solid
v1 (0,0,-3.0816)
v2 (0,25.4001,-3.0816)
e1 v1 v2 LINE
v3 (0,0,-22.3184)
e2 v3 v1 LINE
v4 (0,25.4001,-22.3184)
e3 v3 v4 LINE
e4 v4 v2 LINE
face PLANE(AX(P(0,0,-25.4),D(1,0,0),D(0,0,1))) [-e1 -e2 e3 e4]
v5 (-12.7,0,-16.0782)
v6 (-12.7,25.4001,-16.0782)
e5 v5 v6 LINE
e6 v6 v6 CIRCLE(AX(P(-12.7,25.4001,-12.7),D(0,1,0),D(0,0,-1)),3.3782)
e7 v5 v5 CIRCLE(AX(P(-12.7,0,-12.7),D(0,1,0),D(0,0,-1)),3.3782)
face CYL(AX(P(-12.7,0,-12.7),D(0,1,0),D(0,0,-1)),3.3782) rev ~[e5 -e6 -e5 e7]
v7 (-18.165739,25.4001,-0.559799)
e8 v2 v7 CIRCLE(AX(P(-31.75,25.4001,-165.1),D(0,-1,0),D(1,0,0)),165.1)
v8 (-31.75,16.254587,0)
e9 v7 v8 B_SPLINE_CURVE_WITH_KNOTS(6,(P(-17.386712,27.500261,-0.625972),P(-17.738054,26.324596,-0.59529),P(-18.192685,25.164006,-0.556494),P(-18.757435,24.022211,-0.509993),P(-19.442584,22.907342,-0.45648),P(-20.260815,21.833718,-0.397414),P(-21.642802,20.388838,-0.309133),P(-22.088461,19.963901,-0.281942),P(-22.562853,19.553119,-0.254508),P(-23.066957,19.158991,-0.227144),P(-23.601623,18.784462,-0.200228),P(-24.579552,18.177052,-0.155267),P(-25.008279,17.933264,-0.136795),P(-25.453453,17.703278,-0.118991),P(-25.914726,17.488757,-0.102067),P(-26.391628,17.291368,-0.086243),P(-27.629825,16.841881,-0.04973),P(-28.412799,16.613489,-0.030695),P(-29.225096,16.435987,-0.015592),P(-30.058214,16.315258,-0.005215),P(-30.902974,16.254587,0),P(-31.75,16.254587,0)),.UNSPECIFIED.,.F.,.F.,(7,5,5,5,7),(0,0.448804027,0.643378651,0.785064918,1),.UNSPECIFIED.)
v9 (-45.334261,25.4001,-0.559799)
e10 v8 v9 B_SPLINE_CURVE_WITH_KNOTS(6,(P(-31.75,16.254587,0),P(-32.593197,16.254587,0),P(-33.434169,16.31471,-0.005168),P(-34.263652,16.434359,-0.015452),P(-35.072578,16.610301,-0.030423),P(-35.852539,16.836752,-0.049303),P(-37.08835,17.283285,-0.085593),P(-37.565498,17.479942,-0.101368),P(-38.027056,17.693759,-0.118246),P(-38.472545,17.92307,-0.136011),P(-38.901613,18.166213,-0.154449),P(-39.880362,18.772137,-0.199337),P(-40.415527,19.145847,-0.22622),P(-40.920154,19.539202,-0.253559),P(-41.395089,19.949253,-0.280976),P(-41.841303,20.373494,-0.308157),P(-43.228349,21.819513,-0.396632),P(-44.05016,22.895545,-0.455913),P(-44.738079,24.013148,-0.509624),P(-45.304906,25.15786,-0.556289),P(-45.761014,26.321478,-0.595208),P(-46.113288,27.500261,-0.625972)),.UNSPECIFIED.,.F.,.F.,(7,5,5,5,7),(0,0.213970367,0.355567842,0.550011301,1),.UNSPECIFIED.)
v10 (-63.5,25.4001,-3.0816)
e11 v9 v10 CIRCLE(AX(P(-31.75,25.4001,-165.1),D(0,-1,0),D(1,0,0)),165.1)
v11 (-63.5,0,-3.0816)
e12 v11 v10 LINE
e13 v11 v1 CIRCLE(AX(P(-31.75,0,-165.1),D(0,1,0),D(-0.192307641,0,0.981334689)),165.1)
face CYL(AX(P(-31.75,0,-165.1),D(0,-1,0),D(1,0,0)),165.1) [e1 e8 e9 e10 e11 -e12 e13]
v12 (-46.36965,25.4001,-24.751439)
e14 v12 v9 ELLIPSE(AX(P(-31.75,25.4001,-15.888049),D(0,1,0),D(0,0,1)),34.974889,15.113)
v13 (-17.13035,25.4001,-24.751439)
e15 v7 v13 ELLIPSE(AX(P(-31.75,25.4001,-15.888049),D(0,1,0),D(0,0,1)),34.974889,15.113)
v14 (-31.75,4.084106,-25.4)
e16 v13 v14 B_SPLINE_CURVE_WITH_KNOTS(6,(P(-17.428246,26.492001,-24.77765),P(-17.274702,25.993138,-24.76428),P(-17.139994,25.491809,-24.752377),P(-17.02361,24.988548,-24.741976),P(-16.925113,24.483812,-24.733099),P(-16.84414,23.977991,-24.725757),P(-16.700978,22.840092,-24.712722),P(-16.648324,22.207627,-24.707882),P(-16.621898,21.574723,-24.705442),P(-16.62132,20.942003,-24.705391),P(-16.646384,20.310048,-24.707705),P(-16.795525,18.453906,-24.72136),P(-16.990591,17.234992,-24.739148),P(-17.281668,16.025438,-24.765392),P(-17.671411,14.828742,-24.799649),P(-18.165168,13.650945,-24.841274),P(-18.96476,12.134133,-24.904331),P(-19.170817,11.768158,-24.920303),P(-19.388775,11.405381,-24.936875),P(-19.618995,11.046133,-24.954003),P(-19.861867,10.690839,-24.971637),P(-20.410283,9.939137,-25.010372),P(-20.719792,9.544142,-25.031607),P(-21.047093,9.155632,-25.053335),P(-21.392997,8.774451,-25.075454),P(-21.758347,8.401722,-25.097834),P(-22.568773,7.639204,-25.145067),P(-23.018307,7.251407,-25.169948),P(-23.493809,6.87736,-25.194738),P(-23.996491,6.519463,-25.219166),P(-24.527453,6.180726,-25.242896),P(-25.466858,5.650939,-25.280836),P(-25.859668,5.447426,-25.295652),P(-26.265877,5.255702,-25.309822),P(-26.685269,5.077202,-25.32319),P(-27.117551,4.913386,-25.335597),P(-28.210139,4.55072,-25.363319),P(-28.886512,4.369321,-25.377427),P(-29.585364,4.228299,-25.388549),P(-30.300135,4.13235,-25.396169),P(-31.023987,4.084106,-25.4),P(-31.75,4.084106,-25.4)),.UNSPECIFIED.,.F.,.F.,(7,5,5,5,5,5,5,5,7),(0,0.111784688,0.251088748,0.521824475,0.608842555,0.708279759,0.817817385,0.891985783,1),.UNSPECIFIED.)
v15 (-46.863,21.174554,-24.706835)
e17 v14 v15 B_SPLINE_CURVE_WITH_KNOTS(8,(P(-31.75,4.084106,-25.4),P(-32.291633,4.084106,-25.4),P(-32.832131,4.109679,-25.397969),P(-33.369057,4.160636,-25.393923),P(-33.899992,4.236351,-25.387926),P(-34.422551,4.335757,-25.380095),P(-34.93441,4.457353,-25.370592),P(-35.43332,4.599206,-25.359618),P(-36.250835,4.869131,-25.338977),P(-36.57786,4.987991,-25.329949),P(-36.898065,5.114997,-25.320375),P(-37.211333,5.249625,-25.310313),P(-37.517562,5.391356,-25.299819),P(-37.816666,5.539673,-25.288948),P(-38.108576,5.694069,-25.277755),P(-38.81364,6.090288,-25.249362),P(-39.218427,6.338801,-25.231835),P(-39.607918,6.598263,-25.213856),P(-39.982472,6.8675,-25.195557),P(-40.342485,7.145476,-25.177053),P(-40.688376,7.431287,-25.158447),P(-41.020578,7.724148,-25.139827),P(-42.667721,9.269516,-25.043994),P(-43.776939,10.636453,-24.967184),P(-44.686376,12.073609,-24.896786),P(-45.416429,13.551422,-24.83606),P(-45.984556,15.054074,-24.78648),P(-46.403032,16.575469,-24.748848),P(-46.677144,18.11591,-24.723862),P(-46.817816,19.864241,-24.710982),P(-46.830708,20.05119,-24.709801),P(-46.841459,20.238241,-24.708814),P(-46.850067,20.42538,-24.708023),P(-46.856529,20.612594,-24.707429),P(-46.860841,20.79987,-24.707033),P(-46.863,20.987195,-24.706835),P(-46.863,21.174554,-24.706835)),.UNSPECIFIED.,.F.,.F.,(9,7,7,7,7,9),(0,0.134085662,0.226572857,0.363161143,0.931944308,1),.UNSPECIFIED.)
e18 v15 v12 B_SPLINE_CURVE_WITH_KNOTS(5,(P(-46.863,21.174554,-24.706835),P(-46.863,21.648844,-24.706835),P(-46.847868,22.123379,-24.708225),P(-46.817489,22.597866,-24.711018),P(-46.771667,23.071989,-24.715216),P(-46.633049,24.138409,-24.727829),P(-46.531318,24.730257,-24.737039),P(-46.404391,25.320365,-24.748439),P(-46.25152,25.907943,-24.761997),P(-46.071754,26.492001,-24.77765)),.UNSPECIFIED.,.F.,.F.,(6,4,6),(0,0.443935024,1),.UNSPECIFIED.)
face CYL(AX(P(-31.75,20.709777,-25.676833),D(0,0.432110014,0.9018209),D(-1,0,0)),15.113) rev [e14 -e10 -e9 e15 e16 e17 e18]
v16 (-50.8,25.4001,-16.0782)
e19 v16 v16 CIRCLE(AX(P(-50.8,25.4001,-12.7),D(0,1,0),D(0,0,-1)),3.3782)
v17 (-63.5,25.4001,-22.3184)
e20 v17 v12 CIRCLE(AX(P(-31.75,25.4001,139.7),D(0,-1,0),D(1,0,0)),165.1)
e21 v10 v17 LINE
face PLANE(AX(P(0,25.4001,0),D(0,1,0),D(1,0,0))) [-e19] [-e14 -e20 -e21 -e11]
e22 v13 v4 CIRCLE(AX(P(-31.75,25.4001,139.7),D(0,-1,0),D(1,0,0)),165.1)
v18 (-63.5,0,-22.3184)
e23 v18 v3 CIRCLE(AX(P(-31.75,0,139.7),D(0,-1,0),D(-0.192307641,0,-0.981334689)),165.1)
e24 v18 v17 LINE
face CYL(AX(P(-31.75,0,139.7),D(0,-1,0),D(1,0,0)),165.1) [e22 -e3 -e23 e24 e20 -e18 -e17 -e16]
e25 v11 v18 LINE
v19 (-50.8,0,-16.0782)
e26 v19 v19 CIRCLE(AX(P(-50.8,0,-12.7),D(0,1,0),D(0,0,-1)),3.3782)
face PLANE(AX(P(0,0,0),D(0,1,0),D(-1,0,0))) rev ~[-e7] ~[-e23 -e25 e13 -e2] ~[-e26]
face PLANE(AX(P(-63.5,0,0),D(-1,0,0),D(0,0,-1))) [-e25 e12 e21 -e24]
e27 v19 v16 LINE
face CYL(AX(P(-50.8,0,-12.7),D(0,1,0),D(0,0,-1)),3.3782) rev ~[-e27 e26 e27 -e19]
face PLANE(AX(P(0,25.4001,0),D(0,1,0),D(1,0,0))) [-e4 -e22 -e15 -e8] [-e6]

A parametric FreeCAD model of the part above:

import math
import FreeCAD as App
import Part
import Sketcher

V = App.Vector
Q = App.Units.Quantity

doc = App.newDocument("Part")
params = doc.addObject("Spreadsheet::Sheet", "Params")
for row, (alias, value) in enumerate([
    ("sketch1_height", "1 in"),
    ("sketch1_width", "2.5 in"),
    ("pad1_length", "1.031252 in"),
    ("sketch2_diameter", "0.266 in"),
    ("hole_diameter", "0.266 in"),
    ("sketch3_diameter", "1.19 in"),
    ("pocket1_length", "3 in"),
    ("sketch4_radius", "6.5 in"),
    ("sketch4_width", "1.25 in"),
    ("pocket2_length", "2 in"),
    ("sketch5_radius", "6.5 in"),
    ("sketch5_width", "1.25 in"),
    ("pocket3_length", "2 in"),
    ("pocket4_length", "0.031248 in"),
], start=1):
    params.set(f"A{row}", alias)
    params.set(f"B{row}", "=" + value)
    params.setAlias(f"B{row}", alias)

body = doc.addObject("PartDesign::Body", "Body")

# Sketch on XZ plane
sketch1 = body.newObject("Sketcher::SketchObject", "Sketch")
sketch1.AttachmentSupport = (doc.getObject("XZ_Plane"), [""])
sketch1.MapMode = "FlatFace"
sketch1.addGeometry([
    Part.LineSegment(V(-63.5, 0, 0), V(0, 0, 0)),
    Part.LineSegment(V(0, 0, 0), V(0, -25.4, 0)),
    Part.LineSegment(V(0, -25.4, 0), V(-63.5, -25.4, 0)),
    Part.LineSegment(V(-63.5, -25.4, 0), V(-63.5, 0, 0)),
], False)
sketch1.addConstraint([
    Sketcher.Constraint("Coincident", 0, 2, 1, 1),
    Sketcher.Constraint("Coincident", 1, 2, 2, 1),
    Sketcher.Constraint("Coincident", 2, 2, 3, 1),
    Sketcher.Constraint("Coincident", 3, 2, 0, 1),
    Sketcher.Constraint("Horizontal", 0),
    Sketcher.Constraint("Vertical", 1),
    Sketcher.Constraint("Horizontal", 2),
    Sketcher.Constraint("Vertical", 3),
    Sketcher.Constraint("Coincident", 0, 2, -1, 1),
    Sketcher.Constraint("DistanceY", 1, 2, 1, 1, Q("1 in")),
    Sketcher.Constraint("DistanceX", 0, 1, 0, 2, Q("2.5 in")),
])
sketch1.setExpression("Constraints[9]", "Params.sketch1_height")
sketch1.setExpression("Constraints[10]", "Params.sketch1_width")
pad1 = body.newObject("PartDesign::Pad", "Pad")
pad1.Profile = sketch1
pad1.setExpression("Length", "Params.pad1_length")
pad1.Reversed = True

# Sketch on XZ plane
sketch2 = body.newObject("Sketcher::SketchObject", "Sketch001")
sketch2.AttachmentSupport = (doc.getObject("XZ_Plane"), [""])
sketch2.MapMode = "FlatFace"
sketch2.addGeometry([
    Part.Circle(V(-12.7, -12.7, 0), V(0, 0, 1), 3.3782),
    Part.Circle(V(-50.8, -12.7, 0), V(0, 0, 1), 3.3782),
], False)
sketch2.addConstraint([
    Sketcher.Constraint("Equal", 0, 1),
    Sketcher.Constraint("Horizontal", 0, 3, 1, 3),
    Sketcher.Constraint("Diameter", 0, Q("0.266 in")),
    Sketcher.Constraint("DistanceX", 1, 3, -1, 1, Q("2 in")),
    Sketcher.Constraint("DistanceX", 0, 3, -1, 1, Q("0.5 in")),
    Sketcher.Constraint("DistanceY", 0, 3, -1, 1, Q("0.5 in")),
])
sketch2.setExpression("Constraints[2]", "Params.sketch2_diameter")
doc.recompute()
hole = body.newObject("PartDesign::Hole", "Hole")
hole.Profile = sketch2
hole.ThreadType = "None"
hole.setExpression("Diameter", "Params.hole_diameter")
hole.DepthType = "ThroughAll"

# Sketch on an angled plane
sketch3 = body.newObject("Sketcher::SketchObject", "Sketch002")
sketch3.Placement = App.Placement(V(-63.5, 25.0611, -27.764), App.Rotation(V(-1, 0, 0), V(0, 0.9018209, -0.432110014), V(0, -0.432110014, -0.9018209), "ZXY"))
sketch3.addGeometry(Part.Circle(V(-31.75, -4.826, 0), V(0, 0, 1), 15.113), False)
sketch3.addConstraint([
    Sketcher.Constraint("Diameter", 0, Q("1.19 in")),
    Sketcher.Constraint("DistanceY", 0, 3, -1, 1, Q("0.19 in")),
    Sketcher.Constraint("DistanceX", 0, 3, -1, 1, Q("1.25 in")),
])
sketch3.setExpression("Constraints[0]", "Params.sketch3_diameter")
pocket1 = body.newObject("PartDesign::Pocket", "Pocket")
pocket1.Profile = sketch3
pocket1.setExpression("Length", "Params.pocket1_length")
pocket1.Midplane = True

# Sketch on XZ plane
sketch4 = body.newObject("Sketcher::SketchObject", "Sketch003")
sketch4.AttachmentSupport = (doc.getObject("XZ_Plane"), [""])
sketch4.MapMode = "FlatFace"
sketch4.addGeometry([
    Part.LineSegment(V(0, -3.0816, 0), V(0, 0, 0)),  # 0
    Part.LineSegment(V(0, 0, 0), V(-31.75, 0, 0)),  # 1
    Part.ArcOfCircle(Part.Circle(V(-31.75, -165.1, 0), V(0, 0, 1), 165.1), math.radians(78.912514), math.radians(90)),  # 2
    Part.ArcOfCircle(Part.Circle(V(-31.75, -165.1, 0), V(0, 0, 1), 165.1), math.radians(90), math.radians(101.087486)),  # 3
    Part.LineSegment(V(-31.75, 0, 0), V(-63.5, 0, 0)),  # 4
    Part.LineSegment(V(-63.5, 0, 0), V(-63.5, -3.0816, 0)),  # 5
], False)
sketch4.addConstraint([
    Sketcher.Constraint("Coincident", 0, 2, 1, 1),
    Sketcher.Constraint("Tangent", 1, 2, 2, 2),
    Sketcher.Constraint("Coincident", 2, 1, 0, 1),
    Sketcher.Constraint("Tangent", 3, 1, 4, 1),
    Sketcher.Constraint("Coincident", 4, 2, 5, 1),
    Sketcher.Constraint("Coincident", 5, 2, 3, 2),
    Sketcher.Constraint("Vertical", 0),
    Sketcher.Constraint("Horizontal", 1),
    Sketcher.Constraint("Horizontal", 4),
    Sketcher.Constraint("Vertical", 5),
    Sketcher.Constraint("Coincident", 0, 2, -1, 1),
    Sketcher.Constraint("Coincident", 3, 3, 2, 3),
    Sketcher.Constraint("Equal", 2, 3),
    Sketcher.Constraint("Horizontal", 2, 1, 5, 2),
    Sketcher.Constraint("Radius", 2, Q("6.5 in")),
    Sketcher.Constraint("DistanceX", 1, 2, 1, 1, Q("1.25 in")),
])
sketch4.setExpression("Constraints[14]", "Params.sketch4_radius")
sketch4.setExpression("Constraints[15]", "Params.sketch4_width")
pocket2 = body.newObject("PartDesign::Pocket", "Pocket001")
pocket2.Profile = sketch4
pocket2.setExpression("Length", "Params.pocket2_length")

# Sketch on XZ plane
sketch5 = body.newObject("Sketcher::SketchObject", "Sketch004")
sketch5.AttachmentSupport = (doc.getObject("XZ_Plane"), [""])
sketch5.MapMode = "FlatFace"
sketch5.addGeometry([
    Part.ArcOfCircle(Part.Circle(V(-31.75, 139.7, 0), V(0, 0, 1), 165.1), math.radians(-101.087486), math.radians(-90)),  # 0
    Part.LineSegment(V(-63.5, -22.3184, 0), V(-63.5, -25.4, 0)),  # 1
    Part.LineSegment(V(-63.5, -25.4, 0), V(-31.75, -25.4, 0)),  # 2
    Part.LineSegment(V(0, -25.4, 0), V(0, -22.3184, 0)),  # 3
    Part.ArcOfCircle(Part.Circle(V(-31.75, 139.7, 0), V(0, 0, 1), 165.1), math.radians(-90), math.radians(-78.912514)),  # 4
    Part.LineSegment(V(-31.75, -25.4, 0), V(0, -25.4, 0)),  # 5
], False)
sketch5.addConstraint([
    Sketcher.Constraint("Coincident", 0, 1, 1, 1),
    Sketcher.Constraint("Coincident", 1, 2, 2, 1),
    Sketcher.Constraint("Tangent", 2, 2, 0, 2),
    Sketcher.Constraint("Coincident", 3, 2, 4, 2),
    Sketcher.Constraint("Tangent", 4, 1, 5, 1),
    Sketcher.Constraint("Coincident", 5, 2, 3, 1),
    Sketcher.Constraint("Vertical", 1),
    Sketcher.Constraint("Horizontal", 2),
    Sketcher.Constraint("Vertical", 3),
    Sketcher.Constraint("Horizontal", 5),
    Sketcher.Constraint("Coincident", 4, 3, 0, 3),
    Sketcher.Constraint("Equal", 0, 4),
    Sketcher.Constraint("PointOnObject", 3, 2, -2),
    Sketcher.Constraint("Horizontal", 0, 1, 3, 2),
    Sketcher.Constraint("Radius", 0, Q("6.5 in")),
    Sketcher.Constraint("DistanceY", 1, 2, -1, 1, Q("1 in")),
    Sketcher.Constraint("DistanceX", 2, 1, 2, 2, Q("1.25 in")),
])
sketch5.setExpression("Constraints[14]", "Params.sketch5_radius")
sketch5.setExpression("Constraints[16]", "Params.sketch5_width")
pocket3 = body.newObject("PartDesign::Pocket", "Pocket002")
pocket3.Profile = sketch5
pocket3.setExpression("Length", "Params.pocket3_length")

# Sketch on XZ plane
sketch6 = body.newObject("Sketcher::SketchObject", "Sketch005")
sketch6.AttachmentSupport = (doc.getObject("XZ_Plane"), [""])
sketch6.MapMode = "FlatFace"
sketch6.AttachmentOffset = App.Placement(V(0, 0, -1.031252 * 25.4), App.Rotation())
sketch6.addGeometry([
    Part.LineSegment(V(-66.3152, 13.4203, 0), V(8.9616, 13.4203, 0)),
    Part.LineSegment(V(8.9616, 13.4203, 0), V(8.9616, -46.0555, 0)),
    Part.LineSegment(V(8.9616, -46.0555, 0), V(-66.3152, -46.0555, 0)),
    Part.LineSegment(V(-66.3152, -46.0555, 0), V(-66.3152, 13.4203, 0)),
], False)
sketch6.addConstraint([
    Sketcher.Constraint("Coincident", 0, 2, 1, 1),
    Sketcher.Constraint("Coincident", 1, 2, 2, 1),
    Sketcher.Constraint("Coincident", 2, 2, 3, 1),
    Sketcher.Constraint("Coincident", 3, 2, 0, 1),
    Sketcher.Constraint("Horizontal", 0),
    Sketcher.Constraint("Vertical", 1),
    Sketcher.Constraint("Horizontal", 2),
    Sketcher.Constraint("Vertical", 3),
    Sketcher.Constraint("DistanceX", 0, 1, 0, 2, Q("75.2768 mm")),
    Sketcher.Constraint("DistanceY", 1, 2, 1, 1, Q("59.4758 mm")),
    Sketcher.Constraint("DistanceY", 1, 2, -1, 1, Q("1.8132 in")),
    Sketcher.Constraint("DistanceX", -1, 1, 0, 2, Q("8.9616 mm")),
])
pocket4 = body.newObject("PartDesign::Pocket", "Pocket003")
pocket4.Profile = sketch6
pocket4.setExpression("Length", "Params.pocket4_length")
pocket4.Reversed = True

doc.recompute()
